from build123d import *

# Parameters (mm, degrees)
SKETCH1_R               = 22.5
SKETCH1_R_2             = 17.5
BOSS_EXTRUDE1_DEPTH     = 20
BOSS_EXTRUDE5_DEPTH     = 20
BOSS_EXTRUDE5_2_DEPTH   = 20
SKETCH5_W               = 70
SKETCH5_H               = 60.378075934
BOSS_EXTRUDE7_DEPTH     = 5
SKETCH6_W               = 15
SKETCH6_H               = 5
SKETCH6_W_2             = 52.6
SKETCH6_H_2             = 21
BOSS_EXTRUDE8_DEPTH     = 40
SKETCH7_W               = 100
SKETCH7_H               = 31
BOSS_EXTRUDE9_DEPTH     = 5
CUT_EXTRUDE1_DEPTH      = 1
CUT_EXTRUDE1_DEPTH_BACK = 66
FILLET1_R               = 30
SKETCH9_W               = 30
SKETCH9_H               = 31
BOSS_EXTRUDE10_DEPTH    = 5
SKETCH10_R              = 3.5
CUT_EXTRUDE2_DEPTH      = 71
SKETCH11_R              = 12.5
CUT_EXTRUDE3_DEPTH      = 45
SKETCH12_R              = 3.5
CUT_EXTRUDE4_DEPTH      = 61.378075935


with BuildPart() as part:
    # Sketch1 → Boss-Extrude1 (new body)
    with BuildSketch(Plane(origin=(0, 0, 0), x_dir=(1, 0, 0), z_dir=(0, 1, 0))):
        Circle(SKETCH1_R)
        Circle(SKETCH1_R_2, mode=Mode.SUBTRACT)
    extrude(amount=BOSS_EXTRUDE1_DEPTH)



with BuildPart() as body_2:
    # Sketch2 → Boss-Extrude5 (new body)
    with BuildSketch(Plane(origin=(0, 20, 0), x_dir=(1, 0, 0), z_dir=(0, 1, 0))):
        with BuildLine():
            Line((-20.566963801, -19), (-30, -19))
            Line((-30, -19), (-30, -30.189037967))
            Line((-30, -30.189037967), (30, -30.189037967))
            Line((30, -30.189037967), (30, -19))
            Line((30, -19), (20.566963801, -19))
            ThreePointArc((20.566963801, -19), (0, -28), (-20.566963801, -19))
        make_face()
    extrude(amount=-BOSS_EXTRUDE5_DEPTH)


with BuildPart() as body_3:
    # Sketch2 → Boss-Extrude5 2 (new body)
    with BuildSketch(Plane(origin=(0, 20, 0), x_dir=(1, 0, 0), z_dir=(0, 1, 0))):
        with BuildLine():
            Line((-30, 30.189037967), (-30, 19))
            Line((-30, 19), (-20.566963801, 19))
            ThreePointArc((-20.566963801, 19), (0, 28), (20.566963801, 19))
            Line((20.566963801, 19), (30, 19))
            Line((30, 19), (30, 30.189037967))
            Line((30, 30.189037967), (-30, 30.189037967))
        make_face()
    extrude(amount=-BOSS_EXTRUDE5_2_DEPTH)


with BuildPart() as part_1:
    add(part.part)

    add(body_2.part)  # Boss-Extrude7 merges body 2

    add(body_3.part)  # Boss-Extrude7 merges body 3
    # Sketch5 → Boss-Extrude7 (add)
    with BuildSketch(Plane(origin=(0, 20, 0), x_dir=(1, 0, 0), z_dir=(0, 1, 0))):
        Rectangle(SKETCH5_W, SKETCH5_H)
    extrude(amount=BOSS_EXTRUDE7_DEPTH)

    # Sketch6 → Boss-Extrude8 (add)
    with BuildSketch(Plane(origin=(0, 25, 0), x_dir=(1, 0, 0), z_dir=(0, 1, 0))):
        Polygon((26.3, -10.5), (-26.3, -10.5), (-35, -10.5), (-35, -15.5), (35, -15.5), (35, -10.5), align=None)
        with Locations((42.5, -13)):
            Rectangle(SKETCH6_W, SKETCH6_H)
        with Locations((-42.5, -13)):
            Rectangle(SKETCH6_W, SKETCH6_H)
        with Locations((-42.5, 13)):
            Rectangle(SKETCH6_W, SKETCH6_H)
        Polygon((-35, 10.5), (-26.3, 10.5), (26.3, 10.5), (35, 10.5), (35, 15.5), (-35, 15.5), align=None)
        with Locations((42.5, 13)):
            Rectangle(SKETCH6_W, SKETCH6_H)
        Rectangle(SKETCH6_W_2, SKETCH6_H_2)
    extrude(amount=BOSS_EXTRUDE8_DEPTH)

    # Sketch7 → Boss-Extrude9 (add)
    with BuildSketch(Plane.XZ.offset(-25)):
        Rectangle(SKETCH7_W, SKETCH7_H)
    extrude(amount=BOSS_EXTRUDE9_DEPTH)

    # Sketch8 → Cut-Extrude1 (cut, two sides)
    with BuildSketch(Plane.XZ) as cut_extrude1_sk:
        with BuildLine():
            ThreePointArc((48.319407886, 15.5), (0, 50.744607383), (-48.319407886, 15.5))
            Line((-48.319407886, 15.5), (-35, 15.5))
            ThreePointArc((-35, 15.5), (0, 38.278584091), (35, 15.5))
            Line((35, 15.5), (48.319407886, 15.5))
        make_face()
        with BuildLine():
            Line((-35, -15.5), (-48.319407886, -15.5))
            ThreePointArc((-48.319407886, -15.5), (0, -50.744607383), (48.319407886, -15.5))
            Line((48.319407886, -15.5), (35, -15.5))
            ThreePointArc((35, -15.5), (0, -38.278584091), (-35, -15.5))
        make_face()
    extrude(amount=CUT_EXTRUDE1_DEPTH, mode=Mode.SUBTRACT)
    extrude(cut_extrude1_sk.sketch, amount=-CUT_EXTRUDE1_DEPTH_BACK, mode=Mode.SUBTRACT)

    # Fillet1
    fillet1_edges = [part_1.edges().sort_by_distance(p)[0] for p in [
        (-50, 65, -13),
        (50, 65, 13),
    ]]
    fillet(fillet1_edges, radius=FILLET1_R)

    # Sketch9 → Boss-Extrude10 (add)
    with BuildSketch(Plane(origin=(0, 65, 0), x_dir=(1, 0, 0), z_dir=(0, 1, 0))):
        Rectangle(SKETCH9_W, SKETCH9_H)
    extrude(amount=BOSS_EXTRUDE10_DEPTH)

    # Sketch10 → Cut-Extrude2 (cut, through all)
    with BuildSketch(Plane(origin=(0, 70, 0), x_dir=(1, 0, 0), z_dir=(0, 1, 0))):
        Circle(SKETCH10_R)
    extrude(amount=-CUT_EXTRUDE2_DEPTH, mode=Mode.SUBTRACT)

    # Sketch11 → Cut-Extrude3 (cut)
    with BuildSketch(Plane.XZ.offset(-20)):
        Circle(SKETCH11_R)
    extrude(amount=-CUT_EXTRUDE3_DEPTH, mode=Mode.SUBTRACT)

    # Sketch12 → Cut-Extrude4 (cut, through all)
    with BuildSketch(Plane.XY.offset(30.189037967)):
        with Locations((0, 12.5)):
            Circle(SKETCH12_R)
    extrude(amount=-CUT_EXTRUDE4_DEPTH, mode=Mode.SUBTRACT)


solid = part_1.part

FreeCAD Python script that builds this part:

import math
import FreeCAD as App
import Part
import Sketcher


def edges_at(feature, points):
    """Names of the edges that pass closest to the given points."""
    edges = feature.Shape.Edges
    near = lambda p: min(range(len(edges)), key=lambda i: edges[i].distToShape(Part.Vertex(*p))[0])
    return sorted({f"Edge{near(p) + 1}" for p in points})


def add_polygon(sketch, points):
    """Adds a closed chain of lines whose ends are joined by coincident constraints."""
    first, n = sketch.GeometryCount, len(points)
    for a, b in zip(points, points[1:] + points[:1]):
        sketch.addGeometry(Part.LineSegment(App.Vector(*a, 0), App.Vector(*b, 0)), False)
    for i in range(n):
        sketch.addConstraint(Sketcher.Constraint("Coincident", first + i, 2, first + (i + 1) % n, 1))

doc = App.newDocument("Part")
params = doc.addObject("Spreadsheet::Sheet", "Params")
for row, (alias, value) in enumerate([
    ("sketch1_diameter", "45 mm"),
    ("sketch1_diameter2", "35 mm"),
    ("pad1_length", "20 mm"),
    ("sketch2_radius", "28 mm"),
    ("sketch2_width", "60 mm"),
    ("pad2_length", "20 mm"),
    ("sketch3_radius", "28 mm"),
    ("sketch3_width", "60 mm"),
    ("pad3_length", "20 mm"),
    ("sketch4_width", "70 mm"),
    ("pad4_length", "5 mm"),
    ("sketch5_width", "100 mm"),
    ("sketch5_height", "5 mm"),
    ("sketch5_height2", "21 mm"),
    ("sketch5_width2", "23.7 mm"),
    ("pad5_length", "40 mm"),
    ("sketch6_width", "100 mm"),
    ("sketch6_height", "31 mm"),
    ("pad6_length", "5 mm"),
    ("fillet_radius", "30 mm"),
    ("sketch8_width", "30 mm"),
    ("sketch8_height", "31 mm"),
    ("pad7_length", "5 mm"),
    ("sketch9_diameter", "7 mm"),
    ("sketch10_diameter", "25 mm"),
    ("pocket3_length", "45 mm"),
    ("sketch11_diameter", "7 mm"),
], start=1):
    params.set(f"A{row}", alias)
    params.set(f"B{row}", "=" + value)
    params.setAlias(f"B{row}", alias)

body = doc.addObject("PartDesign::Body", "Body")

sketch1 = body.newObject("Sketcher::SketchObject", "Sketch")
sketch1.AttachmentSupport = (doc.getObject("XZ_Plane"), [""])
sketch1.MapMode = "FlatFace"
sketch1.addGeometry(Part.Circle(App.Vector(0, 0, 0), App.Vector(0, 0, 1), 22.5), False)
sketch1.addGeometry(Part.Circle(App.Vector(0, 0, 0), App.Vector(0, 0, 1), 17.5), False)
sketch1.addConstraint(Sketcher.Constraint("Coincident", 0, 3, -1, 1))
sketch1.addConstraint(Sketcher.Constraint("Coincident", 1, 3, -1, 1))
sketch1.addConstraint(Sketcher.Constraint("Diameter", 0, 45.0))
sketch1.addConstraint(Sketcher.Constraint("Diameter", 1, 35.0))
sketch1.setExpression("Constraints[2]", "Params.sketch1_diameter")
sketch1.setExpression("Constraints[3]", "Params.sketch1_diameter2")
pad1 = body.newObject("PartDesign::Pad", "Pad")
pad1.Profile = sketch1
pad1.setExpression("Length", "Params.pad1_length")
pad1.Reversed = True
body2 = doc.addObject("PartDesign::Body", "Body001")

sketch2 = body2.newObject("Sketcher::SketchObject", "Sketch001")
sketch2.AttachmentSupport = (doc.getObject("XZ_Plane001"), [""])
sketch2.MapMode = "FlatFace"
sketch2.AttachmentOffset = App.Placement(App.Vector(0, 0, -20), App.Rotation())
sketch2.addGeometry(Part.LineSegment(App.Vector(-20.566964, 19, 0), App.Vector(-30, 19, 0)), False)
sketch2.addGeometry(Part.LineSegment(App.Vector(-30, 19, 0), App.Vector(-30, 30.189038, 0)), False)
sketch2.addGeometry(Part.LineSegment(App.Vector(-30, 30.189038, 0), App.Vector(30, 30.189038, 0)), False)
sketch2.addGeometry(Part.LineSegment(App.Vector(30, 30.189038, 0), App.Vector(30, 19, 0)), False)
sketch2.addGeometry(Part.LineSegment(App.Vector(30, 19, 0), App.Vector(20.566964, 19, 0)), False)
sketch2.addGeometry(Part.ArcOfCircle(Part.Circle(App.Vector(0, 0, 0), App.Vector(0, 0, 1), 28), math.radians(42.73211), math.radians(137.26789)), False)
sketch2.addConstraint(Sketcher.Constraint("Coincident", 0, 2, 1, 1))
sketch2.addConstraint(Sketcher.Constraint("Coincident", 1, 2, 2, 1))
sketch2.addConstraint(Sketcher.Constraint("Coincident", 2, 2, 3, 1))
sketch2.addConstraint(Sketcher.Constraint("Coincident", 3, 2, 4, 1))
sketch2.addConstraint(Sketcher.Constraint("Coincident", 4, 2, 5, 1))
sketch2.addConstraint(Sketcher.Constraint("Coincident", 5, 2, 0, 1))
sketch2.addConstraint(Sketcher.Constraint("Horizontal", 0))
sketch2.addConstraint(Sketcher.Constraint("Vertical", 1))
sketch2.addConstraint(Sketcher.Constraint("Horizontal", 2))
sketch2.addConstraint(Sketcher.Constraint("Vertical", 3))
sketch2.addConstraint(Sketcher.Constraint("Horizontal", 4))
sketch2.addConstraint(Sketcher.Constraint("Coincident", 5, 3, -1, 1))
sketch2.addConstraint(Sketcher.Constraint("Symmetric", 0, 2, 3, 2, -2))
sketch2.addConstraint(Sketcher.Constraint("Radius", 5, 28.0))
sketch2.addConstraint(Sketcher.Constraint("DistanceX", 2, 1, 2, 2, 60.0))
sketch2.addConstraint(Sketcher.Constraint("DistanceY", -1, 1, 0, 2, 19.0))
sketch2.addConstraint(Sketcher.Constraint("DistanceY", 1, 1, 1, 2, 11.189038))
sketch2.setExpression("Constraints[13]", "Params.sketch2_radius")
sketch2.setExpression("Constraints[14]", "Params.sketch2_width")
pad2 = body2.newObject("PartDesign::Pad", "Pad001")
pad2.Profile = sketch2
pad2.setExpression("Length", "Params.pad2_length")
body3 = doc.addObject("PartDesign::Body", "Body002")

sketch3 = body3.newObject("Sketcher::SketchObject", "Sketch002")
sketch3.AttachmentSupport = (doc.getObject("XZ_Plane002"), [""])
sketch3.MapMode = "FlatFace"
sketch3.AttachmentOffset = App.Placement(App.Vector(0, 0, -20), App.Rotation())
sketch3.addGeometry(Part.LineSegment(App.Vector(-30, -30.189038, 0), App.Vector(-30, -19, 0)), False)
sketch3.addGeometry(Part.LineSegment(App.Vector(-30, -19, 0), App.Vector(-20.566964, -19, 0)), False)
sketch3.addGeometry(Part.ArcOfCircle(Part.Circle(App.Vector(0, 0, 0), App.Vector(0, 0, 1), 28), math.radians(-137.26789), math.radians(-42.73211)), False)
sketch3.addGeometry(Part.LineSegment(App.Vector(20.566964, -19, 0), App.Vector(30, -19, 0)), False)
sketch3.addGeometry(Part.LineSegment(App.Vector(30, -19, 0), App.Vector(30, -30.189038, 0)), False)
sketch3.addGeometry(Part.LineSegment(App.Vector(30, -30.189038, 0), App.Vector(-30, -30.189038, 0)), False)
sketch3.addConstraint(Sketcher.Constraint("Coincident", 0, 2, 1, 1))
sketch3.addConstraint(Sketcher.Constraint("Coincident", 1, 2, 2, 1))
sketch3.addConstraint(Sketcher.Constraint("Coincident", 2, 2, 3, 1))
sketch3.addConstraint(Sketcher.Constraint("Coincident", 3, 2, 4, 1))
sketch3.addConstraint(Sketcher.Constraint("Coincident", 4, 2, 5, 1))
sketch3.addConstraint(Sketcher.Constraint("Coincident", 5, 2, 0, 1))
sketch3.addConstraint(Sketcher.Constraint("Vertical", 0))
sketch3.addConstraint(Sketcher.Constraint("Horizontal", 1))
sketch3.addConstraint(Sketcher.Constraint("Horizontal", 3))
sketch3.addConstraint(Sketcher.Constraint("Vertical", 4))
sketch3.addConstraint(Sketcher.Constraint("Horizontal", 5))
sketch3.addConstraint(Sketcher.Constraint("Coincident", 2, 3, -1, 1))
sketch3.addConstraint(Sketcher.Constraint("Symmetric", 0, 2, 3, 2, -2))
sketch3.addConstraint(Sketcher.Constraint("Radius", 2, 28.0))
sketch3.addConstraint(Sketcher.Constraint("DistanceX", 5, 2, 5, 1, 60.0))
sketch3.addConstraint(Sketcher.Constraint("DistanceY", 0, 2, -1, 1, 19.0))
sketch3.addConstraint(Sketcher.Constraint("DistanceY", 0, 1, 0, 2, 11.189038))
sketch3.setExpression("Constraints[13]", "Params.sketch3_radius")
sketch3.setExpression("Constraints[14]", "Params.sketch3_width")
pad3 = body3.newObject("PartDesign::Pad", "Pad002")
pad3.Profile = sketch3
pad3.setExpression("Length", "Params.pad3_length")
body.AllowCompound = True
doc.recompute()

boolean = body.newObject("PartDesign::Boolean", "Boolean")
boolean.Type = "Fuse"
boolean.addObjects([body2])
doc.recompute()

boolean2 = body.newObject("PartDesign::Boolean", "Boolean001")
boolean2.Type = "Fuse"
boolean2.addObjects([body3])

sketch4 = body.newObject("Sketcher::SketchObject", "Sketch003")
sketch4.AttachmentSupport = (doc.getObject("XZ_Plane"), [""])
sketch4.MapMode = "FlatFace"
sketch4.AttachmentOffset = App.Placement(App.Vector(0, 0, -20), App.Rotation())
add_polygon(sketch4, [(-35, -30.189038), (-35, 30.189038), (35, 30.189038), (35, -30.189038)])
sketch4.addConstraint(Sketcher.Constraint("Vertical", 0))
sketch4.addConstraint(Sketcher.Constraint("Horizontal", 1))
sketch4.addConstraint(Sketcher.Constraint("Vertical", 2))
sketch4.addConstraint(Sketcher.Constraint("Horizontal", 3))
sketch4.addConstraint(Sketcher.Constraint("Symmetric", 0, 2, 2, 2, -1, 1))
sketch4.addConstraint(Sketcher.Constraint("DistanceX", 1, 1, 1, 2, 70.0))
sketch4.addConstraint(Sketcher.Constraint("DistanceY", 0, 1, 0, 2, 60.378076))
sketch4.setExpression("Constraints[9]", "Params.sketch4_width")
pad4 = body.newObject("PartDesign::Pad", "Pad003")
pad4.Profile = sketch4
pad4.setExpression("Length", "Params.pad4_length")
pad4.Reversed = True

sketch5 = body.newObject("Sketcher::SketchObject", "Sketch004")
sketch5.AttachmentSupport = (doc.getObject("XZ_Plane"), [""])
sketch5.MapMode = "FlatFace"
sketch5.AttachmentOffset = App.Placement(App.Vector(0, 0, -25), App.Rotation())
add_polygon(sketch5, [(50, 15.5), (50, 10.5), (26.3, 10.5), (26.3, -10.5), (50, -10.5), (50, -15.5), (-50, -15.5), (-50, -10.5), (-26.3, -10.5), (-26.3, 10.5), (-50, 10.5), (-50, 15.5)])
sketch5.addConstraint(Sketcher.Constraint("Vertical", 0))
sketch5.addConstraint(Sketcher.Constraint("Horizontal", 1))
sketch5.addConstraint(Sketcher.Constraint("Vertical", 2))
sketch5.addConstraint(Sketcher.Constraint("Horizontal", 3))
sketch5.addConstraint(Sketcher.Constraint("Vertical", 4))
sketch5.addConstraint(Sketcher.Constraint("Horizontal", 5))
sketch5.addConstraint(Sketcher.Constraint("Vertical", 6))
sketch5.addConstraint(Sketcher.Constraint("Horizontal", 7))
sketch5.addConstraint(Sketcher.Constraint("Vertical", 8))
sketch5.addConstraint(Sketcher.Constraint("Horizontal", 9))
sketch5.addConstraint(Sketcher.Constraint("Vertical", 10))
sketch5.addConstraint(Sketcher.Constraint("Horizontal", 11))
sketch5.addConstraint(Sketcher.Constraint("Symmetric", 0, 2, 6, 2, -1, 1))
sketch5.addConstraint(Sketcher.Constraint("Symmetric", 2, 2, 8, 2, -1, 1))
sketch5.addConstraint(Sketcher.Constraint("Symmetric", 4, 2, 10, 2, -1, 1))
sketch5.addConstraint(Sketcher.Constraint("Symmetric", 3, 2, 6, 2, -2))
sketch5.addConstraint(Sketcher.Constraint("DistanceX", 5, 2, 5, 1, 100.0))
sketch5.addConstraint(Sketcher.Constraint("DistanceY", 0, 2, 0, 1, 5.0))
sketch5.addConstraint(Sketcher.Constraint("DistanceY", 2, 2, 2, 1, 21.0))
sketch5.addConstraint(Sketcher.Constraint("DistanceX", 1, 2, 1, 1, 23.7))
sketch5.setExpression("Constraints[28]", "Params.sketch5_width")
sketch5.setExpression("Constraints[29]", "Params.sketch5_height")
sketch5.setExpression("Constraints[30]", "Params.sketch5_height2")
sketch5.setExpression("Constraints[31]", "Params.sketch5_width2")
pad5 = body.newObject("PartDesign::Pad", "Pad004")
pad5.Profile = sketch5
pad5.setExpression("Length", "Params.pad5_length")
pad5.Reversed = True

sketch6 = body.newObject("Sketcher::SketchObject", "Sketch005")
sketch6.AttachmentSupport = (doc.getObject("XZ_Plane"), [""])
sketch6.MapMode = "FlatFace"
sketch6.AttachmentOffset = App.Placement(App.Vector(0, 0, -25), App.Rotation())
add_polygon(sketch6, [(-50, 15.5), (-50, -15.5), (50, -15.5), (50, 15.5)])
sketch6.addConstraint(Sketcher.Constraint("Vertical", 0))
sketch6.addConstraint(Sketcher.Constraint("Horizontal", 1))
sketch6.addConstraint(Sketcher.Constraint("Vertical", 2))
sketch6.addConstraint(Sketcher.Constraint("Horizontal", 3))
sketch6.addConstraint(Sketcher.Constraint("Symmetric", 0, 2, 2, 2, -1, 1))
sketch6.addConstraint(Sketcher.Constraint("DistanceX", 1, 1, 1, 2, 100.0))
sketch6.addConstraint(Sketcher.Constraint("DistanceY", 0, 2, 0, 1, 31.0))
sketch6.setExpression("Constraints[9]", "Params.sketch6_width")
sketch6.setExpression("Constraints[10]", "Params.sketch6_height")
pad6 = body.newObject("PartDesign::Pad", "Pad005")
pad6.Profile = sketch6
pad6.setExpression("Length", "Params.pad6_length")

sketch7 = body.newObject("Sketcher::SketchObject", "Sketch006")
sketch7.AttachmentSupport = (doc.getObject("XZ_Plane"), [""])
sketch7.MapMode = "FlatFace"
sketch7.addGeometry(Part.ArcOfCircle(Part.Circle(App.Vector(0, 0, 0), App.Vector(0, 0, 1), 50.744607), math.radians(17.78531), math.radians(162.21469)), False)
sketch7.addGeometry(Part.LineSegment(App.Vector(-48.319408, 15.5, 0), App.Vector(-35, 15.5, 0)), False)
sketch7.addGeometry(Part.ArcOfCircle(Part.Circle(App.Vector(0, 0, 0), App.Vector(0, 0, 1), 38.278584), math.radians(23.8865), math.radians(156.1135)), False)
sketch7.addGeometry(Part.LineSegment(App.Vector(35, 15.5, 0), App.Vector(48.319408, 15.5, 0)), False)
sketch7.addGeometry(Part.LineSegment(App.Vector(-35, -15.5, 0), App.Vector(-48.319408, -15.5, 0)), False)
sketch7.addGeometry(Part.ArcOfCircle(Part.Circle(App.Vector(0, 0, 0), App.Vector(0, 0, 1), 50.744607), math.radians(-162.21469), math.radians(-17.78531)), False)
sketch7.addGeometry(Part.LineSegment(App.Vector(48.319408, -15.5, 0), App.Vector(35, -15.5, 0)), False)
sketch7.addGeometry(Part.ArcOfCircle(Part.Circle(App.Vector(0, 0, 0), App.Vector(0, 0, 1), 38.278584), math.radians(-156.1135), math.radians(-23.8865)), False)
sketch7.addConstraint(Sketcher.Constraint("Coincident", 0, 2, 1, 1))
sketch7.addConstraint(Sketcher.Constraint("Coincident", 1, 2, 2, 2))
sketch7.addConstraint(Sketcher.Constraint("Coincident", 2, 1, 3, 1))
sketch7.addConstraint(Sketcher.Constraint("Coincident", 3, 2, 0, 1))
sketch7.addConstraint(Sketcher.Constraint("Coincident", 4, 2, 5, 1))
sketch7.addConstraint(Sketcher.Constraint("Coincident", 5, 2, 6, 1))
sketch7.addConstraint(Sketcher.Constraint("Coincident", 6, 2, 7, 2))
sketch7.addConstraint(Sketcher.Constraint("Coincident", 7, 1, 4, 1))
sketch7.addConstraint(Sketcher.Constraint("Horizontal", 1))
sketch7.addConstraint(Sketcher.Constraint("Horizontal", 3))
sketch7.addConstraint(Sketcher.Constraint("Horizontal", 4))
sketch7.addConstraint(Sketcher.Constraint("Horizontal", 6))
sketch7.addConstraint(Sketcher.Constraint("Coincident", 0, 3, -1, 1))
sketch7.addConstraint(Sketcher.Constraint("Coincident", 2, 3, -1, 1))
sketch7.addConstraint(Sketcher.Constraint("Coincident", 5, 3, -1, 1))
sketch7.addConstraint(Sketcher.Constraint("Coincident", 7, 3, -1, 1))
sketch7.addConstraint(Sketcher.Constraint("Equal", 0, 5))
sketch7.addConstraint(Sketcher.Constraint("Equal", 2, 7))
sketch7.addConstraint(Sketcher.Constraint("Horizontal", 1, 2, 2, 1))
sketch7.addConstraint(Sketcher.Constraint("Horizontal", 4, 2, 5, 2))
sketch7.addConstraint(Sketcher.Constraint("Vertical", 0, 2, 4, 2))
sketch7.addConstraint(Sketcher.Constraint("DistanceX", 1, 2, -1, 1, 35.0))
sketch7.addConstraint(Sketcher.Constraint("DistanceY", 4, 2, 0, 2, 31.0))
sketch7.addConstraint(Sketcher.Constraint("Radius", 0, 50.744607))
pocket1 = body.newObject("PartDesign::Pocket", "Pocket")
pocket1.Profile = sketch7
pocket1.Type = "ThroughAll"
pocket1.Midplane = True
doc.recompute()

fillet = body.newObject("PartDesign::Fillet", "Fillet")
fillet.Base = (pocket1, edges_at(pocket1, [(-50, 65, -13), (50, 65, 13)]))
fillet.setExpression("Radius", "Params.fillet_radius")

sketch8 = body.newObject("Sketcher::SketchObject", "Sketch007")
sketch8.AttachmentSupport = (doc.getObject("XZ_Plane"), [""])
sketch8.MapMode = "FlatFace"
sketch8.AttachmentOffset = App.Placement(App.Vector(0, 0, -65), App.Rotation())
add_polygon(sketch8, [(-15, -15.5), (-15, 15.5), (15, 15.5), (15, -15.5)])
sketch8.addConstraint(Sketcher.Constraint("Vertical", 0))
sketch8.addConstraint(Sketcher.Constraint("Horizontal", 1))
sketch8.addConstraint(Sketcher.Constraint("Vertical", 2))
sketch8.addConstraint(Sketcher.Constraint("Horizontal", 3))
sketch8.addConstraint(Sketcher.Constraint("Symmetric", 0, 2, 2, 2, -1, 1))
sketch8.addConstraint(Sketcher.Constraint("DistanceX", 1, 1, 1, 2, 30.0))
sketch8.addConstraint(Sketcher.Constraint("DistanceY", 0, 1, 0, 2, 31.0))
sketch8.setExpression("Constraints[9]", "Params.sketch8_width")
sketch8.setExpression("Constraints[10]", "Params.sketch8_height")
pad7 = body.newObject("PartDesign::Pad", "Pad006")
pad7.Profile = sketch8
pad7.setExpression("Length", "Params.pad7_length")
pad7.Reversed = True

sketch9 = body.newObject("Sketcher::SketchObject", "Sketch008")
sketch9.AttachmentSupport = (doc.getObject("XZ_Plane"), [""])
sketch9.MapMode = "FlatFace"
sketch9.AttachmentOffset = App.Placement(App.Vector(0, 0, -70), App.Rotation())
sketch9.addGeometry(Part.Circle(App.Vector(0, 0, 0), App.Vector(0, 0, 1), 3.5), False)
sketch9.addConstraint(Sketcher.Constraint("Coincident", 0, 3, -1, 1))
sketch9.addConstraint(Sketcher.Constraint("Diameter", 0, 7.0))
sketch9.setExpression("Constraints[1]", "Params.sketch9_diameter")
pocket2 = body.newObject("PartDesign::Pocket", "Pocket001")
pocket2.Profile = sketch9
pocket2.Type = "ThroughAll"
pocket2.Reversed = True

sketch10 = body.newObject("Sketcher::SketchObject", "Sketch009")
sketch10.AttachmentSupport = (doc.getObject("XZ_Plane"), [""])
sketch10.MapMode = "FlatFace"
sketch10.AttachmentOffset = App.Placement(App.Vector(0, 0, -20), App.Rotation())
sketch10.addGeometry(Part.Circle(App.Vector(0, 0, 0), App.Vector(0, 0, 1), 12.5), False)
sketch10.addConstraint(Sketcher.Constraint("Coincident", 0, 3, -1, 1))
sketch10.addConstraint(Sketcher.Constraint("Diameter", 0, 25.0))
sketch10.setExpression("Constraints[1]", "Params.sketch10_diameter")
pocket3 = body.newObject("PartDesign::Pocket", "Pocket002")
pocket3.Profile = sketch10
pocket3.setExpression("Length", "Params.pocket3_length")

sketch11 = body.newObject("Sketcher::SketchObject", "Sketch010")
sketch11.AttachmentSupport = (doc.getObject("XY_Plane"), [""])
sketch11.MapMode = "FlatFace"
sketch11.AttachmentOffset = App.Placement(App.Vector(0, 0, 30.189038), App.Rotation())
sketch11.addGeometry(Part.Circle(App.Vector(0, 12.5, 0), App.Vector(0, 0, 1), 3.5), False)
sketch11.addConstraint(Sketcher.Constraint("PointOnObject", 0, 3, -2))
sketch11.addConstraint(Sketcher.Constraint("Diameter", 0, 7.0))
sketch11.addConstraint(Sketcher.Constraint("DistanceY", -1, 1, 0, 3, 12.5))
sketch11.setExpression("Constraints[1]", "Params.sketch11_diameter")
pocket4 = body.newObject("PartDesign::Pocket", "Pocket003")
pocket4.Profile = sketch11
pocket4.Type = "ThroughAll"

doc.recompute()
